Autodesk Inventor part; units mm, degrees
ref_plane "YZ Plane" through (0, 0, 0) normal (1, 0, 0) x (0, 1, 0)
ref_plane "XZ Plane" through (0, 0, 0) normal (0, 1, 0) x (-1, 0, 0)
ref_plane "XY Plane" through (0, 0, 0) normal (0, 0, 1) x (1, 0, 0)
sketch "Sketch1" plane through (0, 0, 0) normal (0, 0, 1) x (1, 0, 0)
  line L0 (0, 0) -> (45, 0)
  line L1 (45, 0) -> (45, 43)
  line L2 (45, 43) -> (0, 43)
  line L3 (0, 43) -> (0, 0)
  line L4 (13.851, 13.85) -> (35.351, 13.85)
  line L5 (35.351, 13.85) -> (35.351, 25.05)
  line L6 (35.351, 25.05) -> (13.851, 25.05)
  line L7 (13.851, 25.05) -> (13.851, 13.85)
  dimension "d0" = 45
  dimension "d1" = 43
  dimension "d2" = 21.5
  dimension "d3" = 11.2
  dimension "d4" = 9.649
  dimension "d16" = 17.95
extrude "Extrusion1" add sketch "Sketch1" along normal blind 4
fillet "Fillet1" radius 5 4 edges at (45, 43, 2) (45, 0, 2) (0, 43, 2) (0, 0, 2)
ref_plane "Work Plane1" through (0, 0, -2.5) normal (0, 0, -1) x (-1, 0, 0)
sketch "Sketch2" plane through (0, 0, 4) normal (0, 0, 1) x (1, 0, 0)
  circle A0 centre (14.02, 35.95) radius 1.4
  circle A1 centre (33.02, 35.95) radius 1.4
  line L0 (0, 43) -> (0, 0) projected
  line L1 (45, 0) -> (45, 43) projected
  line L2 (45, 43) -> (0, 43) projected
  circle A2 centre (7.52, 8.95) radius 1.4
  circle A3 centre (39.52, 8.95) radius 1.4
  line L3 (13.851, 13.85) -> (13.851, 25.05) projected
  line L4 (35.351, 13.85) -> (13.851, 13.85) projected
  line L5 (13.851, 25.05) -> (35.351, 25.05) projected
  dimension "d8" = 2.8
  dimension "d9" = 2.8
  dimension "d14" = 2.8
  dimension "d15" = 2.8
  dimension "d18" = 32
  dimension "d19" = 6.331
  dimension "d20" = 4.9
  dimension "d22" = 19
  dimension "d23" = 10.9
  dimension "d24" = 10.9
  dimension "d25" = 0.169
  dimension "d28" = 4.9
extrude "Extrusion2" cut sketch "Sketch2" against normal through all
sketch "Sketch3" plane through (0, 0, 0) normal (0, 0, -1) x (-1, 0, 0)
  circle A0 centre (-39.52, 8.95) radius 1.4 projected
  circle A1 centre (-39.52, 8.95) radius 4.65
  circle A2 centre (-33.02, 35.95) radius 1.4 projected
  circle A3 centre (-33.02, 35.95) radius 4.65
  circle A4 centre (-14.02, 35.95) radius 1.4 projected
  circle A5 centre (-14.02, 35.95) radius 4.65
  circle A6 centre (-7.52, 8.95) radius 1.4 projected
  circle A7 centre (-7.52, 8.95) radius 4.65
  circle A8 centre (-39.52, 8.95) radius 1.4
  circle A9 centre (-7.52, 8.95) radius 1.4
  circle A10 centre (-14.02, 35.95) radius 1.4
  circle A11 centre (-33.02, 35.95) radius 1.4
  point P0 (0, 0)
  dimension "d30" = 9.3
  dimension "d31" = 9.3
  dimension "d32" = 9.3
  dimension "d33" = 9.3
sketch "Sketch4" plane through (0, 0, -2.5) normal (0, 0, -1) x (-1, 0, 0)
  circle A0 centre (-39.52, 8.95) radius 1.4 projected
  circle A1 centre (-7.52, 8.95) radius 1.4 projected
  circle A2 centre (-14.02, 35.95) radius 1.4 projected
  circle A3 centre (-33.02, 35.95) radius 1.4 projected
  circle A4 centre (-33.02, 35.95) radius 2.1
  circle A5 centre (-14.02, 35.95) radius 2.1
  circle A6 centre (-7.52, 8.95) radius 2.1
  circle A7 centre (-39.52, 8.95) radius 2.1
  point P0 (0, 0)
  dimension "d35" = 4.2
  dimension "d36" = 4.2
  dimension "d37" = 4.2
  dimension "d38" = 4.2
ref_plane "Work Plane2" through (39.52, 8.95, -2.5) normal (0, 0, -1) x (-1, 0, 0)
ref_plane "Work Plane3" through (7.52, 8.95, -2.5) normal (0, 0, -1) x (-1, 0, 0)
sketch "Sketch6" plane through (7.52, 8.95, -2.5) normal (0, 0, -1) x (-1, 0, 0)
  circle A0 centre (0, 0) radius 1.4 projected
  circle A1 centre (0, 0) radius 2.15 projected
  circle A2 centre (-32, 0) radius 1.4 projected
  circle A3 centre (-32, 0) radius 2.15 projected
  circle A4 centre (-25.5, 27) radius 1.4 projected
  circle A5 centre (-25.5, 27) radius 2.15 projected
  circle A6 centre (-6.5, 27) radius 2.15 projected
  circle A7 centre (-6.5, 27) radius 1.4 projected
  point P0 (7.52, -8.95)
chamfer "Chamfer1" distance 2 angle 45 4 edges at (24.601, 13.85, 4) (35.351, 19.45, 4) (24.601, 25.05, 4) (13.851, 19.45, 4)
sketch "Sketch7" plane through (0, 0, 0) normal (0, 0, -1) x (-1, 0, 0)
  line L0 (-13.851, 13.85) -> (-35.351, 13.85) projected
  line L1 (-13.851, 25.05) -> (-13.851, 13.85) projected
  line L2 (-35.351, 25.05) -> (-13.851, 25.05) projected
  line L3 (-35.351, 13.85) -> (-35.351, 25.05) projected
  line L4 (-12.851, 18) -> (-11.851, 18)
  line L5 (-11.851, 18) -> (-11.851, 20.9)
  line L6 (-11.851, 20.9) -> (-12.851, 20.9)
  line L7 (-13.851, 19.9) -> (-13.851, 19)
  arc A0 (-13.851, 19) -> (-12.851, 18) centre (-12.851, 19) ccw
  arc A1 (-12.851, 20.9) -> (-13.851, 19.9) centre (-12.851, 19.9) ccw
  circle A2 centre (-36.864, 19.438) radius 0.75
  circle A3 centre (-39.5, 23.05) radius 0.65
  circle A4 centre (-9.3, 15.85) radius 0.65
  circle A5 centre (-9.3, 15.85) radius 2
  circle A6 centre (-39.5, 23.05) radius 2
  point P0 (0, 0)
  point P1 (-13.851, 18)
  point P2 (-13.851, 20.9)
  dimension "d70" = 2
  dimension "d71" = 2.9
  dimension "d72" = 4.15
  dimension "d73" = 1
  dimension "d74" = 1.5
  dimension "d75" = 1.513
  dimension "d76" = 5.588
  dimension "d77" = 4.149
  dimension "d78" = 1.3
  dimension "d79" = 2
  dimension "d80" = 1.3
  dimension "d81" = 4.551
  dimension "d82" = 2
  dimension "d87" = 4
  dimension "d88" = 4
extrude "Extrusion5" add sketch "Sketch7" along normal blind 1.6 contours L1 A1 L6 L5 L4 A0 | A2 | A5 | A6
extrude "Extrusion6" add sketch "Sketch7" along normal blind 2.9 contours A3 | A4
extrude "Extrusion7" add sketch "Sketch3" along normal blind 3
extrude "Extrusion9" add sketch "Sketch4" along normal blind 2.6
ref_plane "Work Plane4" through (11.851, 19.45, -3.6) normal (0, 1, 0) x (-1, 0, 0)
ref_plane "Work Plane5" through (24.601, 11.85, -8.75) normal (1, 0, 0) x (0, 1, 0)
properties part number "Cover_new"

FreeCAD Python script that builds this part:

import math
import FreeCAD as App
import Part
import Sketcher


def edges_at(feature, points):
    """Names of the edges that pass closest to the given points."""
    edges = feature.Shape.Edges
    near = lambda p: min(range(len(edges)), key=lambda i: edges[i].distToShape(Part.Vertex(*p))[0])
    return sorted({f"Edge{near(p) + 1}" for p in points})


def add_polygon(sketch, points):
    """Adds a closed chain of lines whose ends are joined by coincident constraints."""
    first, n = sketch.GeometryCount, len(points)
    for a, b in zip(points, points[1:] + points[:1]):
        sketch.addGeometry(Part.LineSegment(App.Vector(*a, 0), App.Vector(*b, 0)), False)
    for i in range(n):
        sketch.addConstraint(Sketcher.Constraint("Coincident", first + i, 2, first + (i + 1) % n, 1))

doc = App.newDocument("Part")
body = doc.addObject("PartDesign::Body", "Body")

sketch1 = doc.addObject("Sketcher::SketchObject", "Sketch")
body.addObject(sketch1)
sketch1.AttachmentSupport = (doc.XY_Plane, [""])
sketch1.MapMode = "FlatFace"
add_polygon(sketch1, [(0, 43), (0, 0), (45, 0), (45, 43)])
add_polygon(sketch1, [(35.351, 13.85), (13.851, 13.85), (13.851, 25.05), (35.351, 25.05)])
sketch1.addConstraint(Sketcher.Constraint("Vertical", 0))
sketch1.addConstraint(Sketcher.Constraint("Horizontal", 1))
sketch1.addConstraint(Sketcher.Constraint("Vertical", 2))
sketch1.addConstraint(Sketcher.Constraint("Horizontal", 3))
sketch1.addConstraint(Sketcher.Constraint("Horizontal", 4))
sketch1.addConstraint(Sketcher.Constraint("Vertical", 5))
sketch1.addConstraint(Sketcher.Constraint("Horizontal", 6))
sketch1.addConstraint(Sketcher.Constraint("Vertical", 7))
sketch1.addConstraint(Sketcher.Constraint("Coincident", 0, 2, -1, 1))
sketch1.addConstraint(Sketcher.Constraint("DistanceX", 1, 1, 1, 2, 45.0))
sketch1.addConstraint(Sketcher.Constraint("DistanceY", 0, 2, 0, 1, 43.0))
sketch1.addConstraint(Sketcher.Constraint("DistanceX", 4, 2, 4, 1, 21.5))
sketch1.addConstraint(Sketcher.Constraint("DistanceY", 5, 1, 5, 2, 11.2))
sketch1.addConstraint(Sketcher.Constraint("DistanceY", 5, 2, 3, 2, 17.95))
sketch1.addConstraint(Sketcher.Constraint("DistanceX", 6, 2, 2, 2, 9.649))
pad1 = doc.addObject("PartDesign::Pad", "Pad")
body.addObject(pad1)
pad1.Profile = sketch1
pad1.Length = 4
doc.recompute()

fillet = doc.addObject("PartDesign::Fillet", "Fillet")
body.addObject(fillet)
fillet.Base = (pad1, edges_at(pad1, [
    (45, 43, 2),
    (45, 0, 2),
    (0, 43, 2),
    (0, 0, 2),
]))
fillet.Radius = 5

sketch2 = doc.addObject("Sketcher::SketchObject", "Sketch001")
body.addObject(sketch2)
sketch2.AttachmentSupport = (doc.XY_Plane, [""])
sketch2.MapMode = "FlatFace"
sketch2.AttachmentOffset = App.Placement(App.Vector(0, 0, 4), App.Rotation())
sketch2.addGeometry(Part.Circle(App.Vector(14.02, 35.95, 0), App.Vector(0, 0, 1), 1.4), False)
sketch2.addGeometry(Part.Circle(App.Vector(33.02, 35.95, 0), App.Vector(0, 0, 1), 1.4), False)
sketch2.addGeometry(Part.Circle(App.Vector(7.52, 8.95, 0), App.Vector(0, 0, 1), 1.4), False)
sketch2.addGeometry(Part.Circle(App.Vector(39.52, 8.95, 0), App.Vector(0, 0, 1), 1.4), False)
sketch2.addConstraint(Sketcher.Constraint("Equal", 0, 1))
sketch2.addConstraint(Sketcher.Constraint("Equal", 1, 2))
sketch2.addConstraint(Sketcher.Constraint("Equal", 2, 3))
sketch2.addConstraint(Sketcher.Constraint("Horizontal", 0, 3, 1, 3))
sketch2.addConstraint(Sketcher.Constraint("Horizontal", 2, 3, 3, 3))
sketch2.addConstraint(Sketcher.Constraint("Diameter", 0, 2.8))
sketch2.addConstraint(Sketcher.Constraint("DistanceX", 0, 3, 1, 3, 19.0))
sketch2.addConstraint(Sketcher.Constraint("DistanceX", 2, 3, 3, 3, 32.0))
sketch2.addConstraint(Sketcher.Constraint("DistanceY", 2, 3, 0, 3, 27.0))
sketch2.addConstraint(Sketcher.Constraint("DistanceX", 2, 3, 0, 3, 6.5))
sketch2.addConstraint(Sketcher.Constraint("DistanceX", -1, 1, 0, 3, 14.02))
sketch2.addConstraint(Sketcher.Constraint("DistanceY", -1, 1, 0, 3, 35.95))
pocket1 = doc.addObject("PartDesign::Pocket", "Pocket")
body.addObject(pocket1)
pocket1.Profile = sketch2
pocket1.Type = "ThroughAll"
doc.recompute()

chamfer = doc.addObject("PartDesign::Chamfer", "Chamfer")
body.addObject(chamfer)
chamfer.Base = (pocket1, edges_at(pocket1, [
    (24.601, 13.85, 4),
    (35.351, 19.45, 4),
    (24.601, 25.05, 4),
    (13.851, 19.45, 4),
]))
chamfer.Size = 2

sketch3 = doc.addObject("Sketcher::SketchObject", "Sketch002")
body.addObject(sketch3)
sketch3.AttachmentSupport = (doc.XY_Plane, [""])
sketch3.MapMode = "FlatFace"
sketch3.addGeometry(Part.LineSegment(App.Vector(13.851, 19.9, 0), App.Vector(13.851, 19, 0)), False)
sketch3.addGeometry(Part.ArcOfCircle(Part.Circle(App.Vector(12.851, 19, 0), App.Vector(0, 0, 1), 1), math.radians(-90), math.radians(0)), False)
sketch3.addGeometry(Part.LineSegment(App.Vector(12.851, 18, 0), App.Vector(11.851, 18, 0)), False)
sketch3.addGeometry(Part.LineSegment(App.Vector(11.851, 18, 0), App.Vector(11.851, 20.9, 0)), False)
sketch3.addGeometry(Part.LineSegment(App.Vector(11.851, 20.9, 0), App.Vector(12.851, 20.9, 0)), False)
sketch3.addGeometry(Part.ArcOfCircle(Part.Circle(App.Vector(12.851, 19.9, 0), App.Vector(0, 0, 1), 1), math.radians(0), math.radians(90)), False)
sketch3.addGeometry(Part.Circle(App.Vector(36.864, 19.438, 0), App.Vector(0, 0, 1), 0.75), False)
sketch3.addGeometry(Part.Circle(App.Vector(9.3, 15.85, 0), App.Vector(0, 0, 1), 2), False)
sketch3.addGeometry(Part.Circle(App.Vector(9.3, 15.85, 0), App.Vector(0, 0, 1), 0.65), False)
sketch3.addGeometry(Part.Circle(App.Vector(39.5, 23.05, 0), App.Vector(0, 0, 1), 2), False)
sketch3.addGeometry(Part.Circle(App.Vector(39.5, 23.05, 0), App.Vector(0, 0, 1), 0.65), False)
sketch3.addConstraint(Sketcher.Constraint("Tangent", 0, 2, 1, 2))
sketch3.addConstraint(Sketcher.Constraint("Tangent", 1, 1, 2, 1))
sketch3.addConstraint(Sketcher.Constraint("Coincident", 2, 2, 3, 1))
sketch3.addConstraint(Sketcher.Constraint("Coincident", 3, 2, 4, 1))
sketch3.addConstraint(Sketcher.Constraint("Tangent", 4, 2, 5, 2))
sketch3.addConstraint(Sketcher.Constraint("Tangent", 5, 1, 0, 1))
sketch3.addConstraint(Sketcher.Constraint("Vertical", 0))
sketch3.addConstraint(Sketcher.Constraint("Horizontal", 2))
sketch3.addConstraint(Sketcher.Constraint("Vertical", 3))
sketch3.addConstraint(Sketcher.Constraint("Horizontal", 4))
sketch3.addConstraint(Sketcher.Constraint("Coincident", 8, 3, 7, 3))
sketch3.addConstraint(Sketcher.Constraint("Coincident", 10, 3, 9, 3))
sketch3.addConstraint(Sketcher.Constraint("Equal", 1, 5))
sketch3.addConstraint(Sketcher.Constraint("Equal", 7, 9))
sketch3.addConstraint(Sketcher.Constraint("Equal", 8, 10))
sketch3.addConstraint(Sketcher.Constraint("Diameter", 7, 4.0))
sketch3.addConstraint(Sketcher.Constraint("Radius", 1, 1.0))
sketch3.addConstraint(Sketcher.Constraint("Diameter", 6, 1.5))
sketch3.addConstraint(Sketcher.Constraint("Diameter", 8, 1.3))
sketch3.addConstraint(Sketcher.Constraint("DistanceX", 2, 2, 2, 1, 1.0))
sketch3.addConstraint(Sketcher.Constraint("DistanceY", 3, 1, 3, 2, 2.9))
sketch3.addConstraint(Sketcher.Constraint("DistanceY", -1, 1, 1, 3, 19.0))
sketch3.addConstraint(Sketcher.Constraint("DistanceX", 7, 3, 0, 2, 4.551))
sketch3.addConstraint(Sketcher.Constraint("DistanceX", -1, 1, 7, 3, 9.3))
sketch3.addConstraint(Sketcher.Constraint("DistanceX", -1, 1, 9, 3, 39.5))
sketch3.addConstraint(Sketcher.Constraint("DistanceY", 7, 3, 9, 3, 7.2))
sketch3.addConstraint(Sketcher.Constraint("DistanceY", -1, 1, 7, 3, 15.85))
sketch3.addConstraint(Sketcher.Constraint("DistanceX", -1, 1, 6, 3, 36.864))
sketch3.addConstraint(Sketcher.Constraint("DistanceY", -1, 1, 6, 3, 19.438))
pad2 = doc.addObject("PartDesign::Pad", "Pad001")
body.addObject(pad2)
pad2.Profile = sketch3
pad2.Length = 1.6
pad2.Reversed = True

sketch4 = doc.addObject("Sketcher::SketchObject", "Sketch003")
body.addObject(sketch4)
sketch4.AttachmentSupport = (doc.XY_Plane, [""])
sketch4.MapMode = "FlatFace"
sketch4.addGeometry(Part.Circle(App.Vector(39.5, 23.05, 0), App.Vector(0, 0, 1), 0.65), False)
sketch4.addGeometry(Part.Circle(App.Vector(9.3, 15.85, 0), App.Vector(0, 0, 1), 0.65), False)
sketch4.addConstraint(Sketcher.Constraint("Equal", 0, 1))
sketch4.addConstraint(Sketcher.Constraint("Diameter", 0, 1.3))
sketch4.addConstraint(Sketcher.Constraint("DistanceX", -1, 1, 0, 3, 39.5))
sketch4.addConstraint(Sketcher.Constraint("DistanceX", -1, 1, 1, 3, 9.3))
sketch4.addConstraint(Sketcher.Constraint("DistanceY", 1, 3, 0, 3, 7.2))
sketch4.addConstraint(Sketcher.Constraint("DistanceY", -1, 1, 0, 3, 23.05))
pad3 = doc.addObject("PartDesign::Pad", "Pad002")
body.addObject(pad3)
pad3.Profile = sketch4
pad3.Length = 2.9
pad3.Reversed = True

sketch5 = doc.addObject("Sketcher::SketchObject", "Sketch004")
body.addObject(sketch5)
sketch5.AttachmentSupport = (doc.XY_Plane, [""])
sketch5.MapMode = "FlatFace"
sketch5.addGeometry(Part.Circle(App.Vector(39.52, 8.95, 0), App.Vector(0, 0, 1), 4.65), False)
sketch5.addGeometry(Part.Circle(App.Vector(39.52, 8.95, 0), App.Vector(0, 0, 1), 1.4), False)
sketch5.addGeometry(Part.Circle(App.Vector(33.02, 35.95, 0), App.Vector(0, 0, 1), 4.65), False)
sketch5.addGeometry(Part.Circle(App.Vector(33.02, 35.95, 0), App.Vector(0, 0, 1), 1.4), False)
sketch5.addGeometry(Part.Circle(App.Vector(14.02, 35.95, 0), App.Vector(0, 0, 1), 4.65), False)
sketch5.addGeometry(Part.Circle(App.Vector(14.02, 35.95, 0), App.Vector(0, 0, 1), 1.4), False)
sketch5.addGeometry(Part.Circle(App.Vector(7.52, 8.95, 0), App.Vector(0, 0, 1), 4.65), False)
sketch5.addGeometry(Part.Circle(App.Vector(7.52, 8.95, 0), App.Vector(0, 0, 1), 1.4), False)
sketch5.addConstraint(Sketcher.Constraint("Coincident", 1, 3, 0, 3))
sketch5.addConstraint(Sketcher.Constraint("Coincident", 3, 3, 2, 3))
sketch5.addConstraint(Sketcher.Constraint("Coincident", 5, 3, 4, 3))
sketch5.addConstraint(Sketcher.Constraint("Coincident", 7, 3, 6, 3))
sketch5.addConstraint(Sketcher.Constraint("Equal", 0, 2))
sketch5.addConstraint(Sketcher.Constraint("Equal", 1, 3))
sketch5.addConstraint(Sketcher.Constraint("Equal", 2, 4))
sketch5.addConstraint(Sketcher.Constraint("Equal", 3, 5))
sketch5.addConstraint(Sketcher.Constraint("Equal", 4, 6))
sketch5.addConstraint(Sketcher.Constraint("Equal", 5, 7))
sketch5.addConstraint(Sketcher.Constraint("Horizontal", 3, 3, 4, 3))
sketch5.addConstraint(Sketcher.Constraint("Horizontal", 1, 3, 6, 3))
sketch5.addConstraint(Sketcher.Constraint("Diameter", 0, 9.3))
sketch5.addConstraint(Sketcher.Constraint("Diameter", 1, 2.8))
sketch5.addConstraint(Sketcher.Constraint("DistanceY", 0, 3, 2, 3, 27.0))
sketch5.addConstraint(Sketcher.Constraint("DistanceX", 4, 3, 2, 3, 19.0))
sketch5.addConstraint(Sketcher.Constraint("DistanceX", 6, 3, 0, 3, 32.0))
sketch5.addConstraint(Sketcher.Constraint("DistanceX", 2, 3, 0, 3, 6.5))
sketch5.addConstraint(Sketcher.Constraint("DistanceX", -1, 1, 0, 3, 39.52))
sketch5.addConstraint(Sketcher.Constraint("DistanceY", -1, 1, 0, 3, 8.95))
pad4 = doc.addObject("PartDesign::Pad", "Pad003")
body.addObject(pad4)
pad4.Profile = sketch5
pad4.Length = 3
pad4.Reversed = True

sketch6 = doc.addObject("Sketcher::SketchObject", "Sketch005")
body.addObject(sketch6)
sketch6.AttachmentSupport = (doc.XY_Plane, [""])
sketch6.MapMode = "FlatFace"
sketch6.AttachmentOffset = App.Placement(App.Vector(0, 0, -2.5), App.Rotation())
sketch6.addGeometry(Part.Circle(App.Vector(33.02, 35.95, 0), App.Vector(0, 0, 1), 2.1), False)
sketch6.addGeometry(Part.Circle(App.Vector(33.02, 35.95, 0), App.Vector(0, 0, 1), 1.4), False)
sketch6.addGeometry(Part.Circle(App.Vector(14.02, 35.95, 0), App.Vector(0, 0, 1), 2.1), False)
sketch6.addGeometry(Part.Circle(App.Vector(14.02, 35.95, 0), App.Vector(0, 0, 1), 1.4), False)
sketch6.addGeometry(Part.Circle(App.Vector(7.52, 8.95, 0), App.Vector(0, 0, 1), 2.1), False)
sketch6.addGeometry(Part.Circle(App.Vector(7.52, 8.95, 0), App.Vector(0, 0, 1), 1.4), False)
sketch6.addGeometry(Part.Circle(App.Vector(39.52, 8.95, 0), App.Vector(0, 0, 1), 2.1), False)
sketch6.addGeometry(Part.Circle(App.Vector(39.52, 8.95, 0), App.Vector(0, 0, 1), 1.4), False)
sketch6.addConstraint(Sketcher.Constraint("Coincident", 1, 3, 0, 3))
sketch6.addConstraint(Sketcher.Constraint("Coincident", 3, 3, 2, 3))
sketch6.addConstraint(Sketcher.Constraint("Coincident", 5, 3, 4, 3))
sketch6.addConstraint(Sketcher.Constraint("Coincident", 7, 3, 6, 3))
sketch6.addConstraint(Sketcher.Constraint("Equal", 0, 2))
sketch6.addConstraint(Sketcher.Constraint("Equal", 1, 3))
sketch6.addConstraint(Sketcher.Constraint("Equal", 2, 4))
sketch6.addConstraint(Sketcher.Constraint("Equal", 3, 5))
sketch6.addConstraint(Sketcher.Constraint("Equal", 4, 6))
sketch6.addConstraint(Sketcher.Constraint("Equal", 5, 7))
sketch6.addConstraint(Sketcher.Constraint("Horizontal", 1, 3, 2, 3))
sketch6.addConstraint(Sketcher.Constraint("Horizontal", 5, 3, 6, 3))
sketch6.addConstraint(Sketcher.Constraint("Diameter", 0, 4.2))
sketch6.addConstraint(Sketcher.Constraint("Diameter", 1, 2.8))
sketch6.addConstraint(Sketcher.Constraint("DistanceX", 2, 3, 0, 3, 19.0))
sketch6.addConstraint(Sketcher.Constraint("DistanceY", 4, 3, 2, 3, 27.0))
sketch6.addConstraint(Sketcher.Constraint("DistanceX", 4, 3, 6, 3, 32.0))
sketch6.addConstraint(Sketcher.Constraint("DistanceX", 4, 3, 2, 3, 6.5))
sketch6.addConstraint(Sketcher.Constraint("DistanceX", -1, 1, 0, 3, 33.02))
sketch6.addConstraint(Sketcher.Constraint("DistanceY", -1, 1, 0, 3, 35.95))
pad5 = doc.addObject("PartDesign::Pad", "Pad004")
body.addObject(pad5)
pad5.Profile = sketch6
pad5.Length = 2.6
pad5.Reversed = True

doc.recompute()
